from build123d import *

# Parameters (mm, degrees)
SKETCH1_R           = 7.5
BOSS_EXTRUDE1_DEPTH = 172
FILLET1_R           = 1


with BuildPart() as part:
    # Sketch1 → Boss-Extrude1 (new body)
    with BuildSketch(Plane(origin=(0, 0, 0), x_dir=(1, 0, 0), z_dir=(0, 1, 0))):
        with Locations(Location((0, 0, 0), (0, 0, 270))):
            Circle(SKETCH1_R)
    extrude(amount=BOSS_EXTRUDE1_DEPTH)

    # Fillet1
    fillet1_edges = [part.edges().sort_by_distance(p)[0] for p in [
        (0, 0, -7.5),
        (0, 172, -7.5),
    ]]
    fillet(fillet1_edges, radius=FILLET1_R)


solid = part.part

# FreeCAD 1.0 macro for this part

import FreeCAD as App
import Part
import Sketcher


def edges_at(feature, points):
    """Names of the edges that pass closest to the given points."""
    edges = feature.Shape.Edges
    near = lambda p: min(range(len(edges)), key=lambda i: edges[i].distToShape(Part.Vertex(*p))[0])
    return sorted({f"Edge{near(p) + 1}" for p in points})

doc = App.newDocument("Part")
body = doc.addObject("PartDesign::Body", "Body")

# Sketch on XZ plane
sketch1 = body.newObject("Sketcher::SketchObject", "Sketch")
sketch1.AttachmentSupport = (doc.getObject("XZ_Plane"), [""])
sketch1.MapMode = "FlatFace"
sketch1.addGeometry(Part.Circle(App.Vector(0, 0, 0), App.Vector(0, 0, 1), 8), False)
sketch1.addConstraint([
    Sketcher.Constraint("Coincident", 0, 3, -1, 1),
    Sketcher.Constraint("Diameter", 0, 15.0),
])
pad1 = body.newObject("PartDesign::Pad", "Pad")
pad1.Profile = sketch1
pad1.Length = 172
pad1.Reversed = True
doc.recompute()

fillet = body.newObject("PartDesign::Fillet", "Fillet")
fillet.Base = (pad1, edges_at(pad1, [(0, 0, -7.5), (0, 172, -7.5)]))
fillet.Radius = 1

doc.recompute()
